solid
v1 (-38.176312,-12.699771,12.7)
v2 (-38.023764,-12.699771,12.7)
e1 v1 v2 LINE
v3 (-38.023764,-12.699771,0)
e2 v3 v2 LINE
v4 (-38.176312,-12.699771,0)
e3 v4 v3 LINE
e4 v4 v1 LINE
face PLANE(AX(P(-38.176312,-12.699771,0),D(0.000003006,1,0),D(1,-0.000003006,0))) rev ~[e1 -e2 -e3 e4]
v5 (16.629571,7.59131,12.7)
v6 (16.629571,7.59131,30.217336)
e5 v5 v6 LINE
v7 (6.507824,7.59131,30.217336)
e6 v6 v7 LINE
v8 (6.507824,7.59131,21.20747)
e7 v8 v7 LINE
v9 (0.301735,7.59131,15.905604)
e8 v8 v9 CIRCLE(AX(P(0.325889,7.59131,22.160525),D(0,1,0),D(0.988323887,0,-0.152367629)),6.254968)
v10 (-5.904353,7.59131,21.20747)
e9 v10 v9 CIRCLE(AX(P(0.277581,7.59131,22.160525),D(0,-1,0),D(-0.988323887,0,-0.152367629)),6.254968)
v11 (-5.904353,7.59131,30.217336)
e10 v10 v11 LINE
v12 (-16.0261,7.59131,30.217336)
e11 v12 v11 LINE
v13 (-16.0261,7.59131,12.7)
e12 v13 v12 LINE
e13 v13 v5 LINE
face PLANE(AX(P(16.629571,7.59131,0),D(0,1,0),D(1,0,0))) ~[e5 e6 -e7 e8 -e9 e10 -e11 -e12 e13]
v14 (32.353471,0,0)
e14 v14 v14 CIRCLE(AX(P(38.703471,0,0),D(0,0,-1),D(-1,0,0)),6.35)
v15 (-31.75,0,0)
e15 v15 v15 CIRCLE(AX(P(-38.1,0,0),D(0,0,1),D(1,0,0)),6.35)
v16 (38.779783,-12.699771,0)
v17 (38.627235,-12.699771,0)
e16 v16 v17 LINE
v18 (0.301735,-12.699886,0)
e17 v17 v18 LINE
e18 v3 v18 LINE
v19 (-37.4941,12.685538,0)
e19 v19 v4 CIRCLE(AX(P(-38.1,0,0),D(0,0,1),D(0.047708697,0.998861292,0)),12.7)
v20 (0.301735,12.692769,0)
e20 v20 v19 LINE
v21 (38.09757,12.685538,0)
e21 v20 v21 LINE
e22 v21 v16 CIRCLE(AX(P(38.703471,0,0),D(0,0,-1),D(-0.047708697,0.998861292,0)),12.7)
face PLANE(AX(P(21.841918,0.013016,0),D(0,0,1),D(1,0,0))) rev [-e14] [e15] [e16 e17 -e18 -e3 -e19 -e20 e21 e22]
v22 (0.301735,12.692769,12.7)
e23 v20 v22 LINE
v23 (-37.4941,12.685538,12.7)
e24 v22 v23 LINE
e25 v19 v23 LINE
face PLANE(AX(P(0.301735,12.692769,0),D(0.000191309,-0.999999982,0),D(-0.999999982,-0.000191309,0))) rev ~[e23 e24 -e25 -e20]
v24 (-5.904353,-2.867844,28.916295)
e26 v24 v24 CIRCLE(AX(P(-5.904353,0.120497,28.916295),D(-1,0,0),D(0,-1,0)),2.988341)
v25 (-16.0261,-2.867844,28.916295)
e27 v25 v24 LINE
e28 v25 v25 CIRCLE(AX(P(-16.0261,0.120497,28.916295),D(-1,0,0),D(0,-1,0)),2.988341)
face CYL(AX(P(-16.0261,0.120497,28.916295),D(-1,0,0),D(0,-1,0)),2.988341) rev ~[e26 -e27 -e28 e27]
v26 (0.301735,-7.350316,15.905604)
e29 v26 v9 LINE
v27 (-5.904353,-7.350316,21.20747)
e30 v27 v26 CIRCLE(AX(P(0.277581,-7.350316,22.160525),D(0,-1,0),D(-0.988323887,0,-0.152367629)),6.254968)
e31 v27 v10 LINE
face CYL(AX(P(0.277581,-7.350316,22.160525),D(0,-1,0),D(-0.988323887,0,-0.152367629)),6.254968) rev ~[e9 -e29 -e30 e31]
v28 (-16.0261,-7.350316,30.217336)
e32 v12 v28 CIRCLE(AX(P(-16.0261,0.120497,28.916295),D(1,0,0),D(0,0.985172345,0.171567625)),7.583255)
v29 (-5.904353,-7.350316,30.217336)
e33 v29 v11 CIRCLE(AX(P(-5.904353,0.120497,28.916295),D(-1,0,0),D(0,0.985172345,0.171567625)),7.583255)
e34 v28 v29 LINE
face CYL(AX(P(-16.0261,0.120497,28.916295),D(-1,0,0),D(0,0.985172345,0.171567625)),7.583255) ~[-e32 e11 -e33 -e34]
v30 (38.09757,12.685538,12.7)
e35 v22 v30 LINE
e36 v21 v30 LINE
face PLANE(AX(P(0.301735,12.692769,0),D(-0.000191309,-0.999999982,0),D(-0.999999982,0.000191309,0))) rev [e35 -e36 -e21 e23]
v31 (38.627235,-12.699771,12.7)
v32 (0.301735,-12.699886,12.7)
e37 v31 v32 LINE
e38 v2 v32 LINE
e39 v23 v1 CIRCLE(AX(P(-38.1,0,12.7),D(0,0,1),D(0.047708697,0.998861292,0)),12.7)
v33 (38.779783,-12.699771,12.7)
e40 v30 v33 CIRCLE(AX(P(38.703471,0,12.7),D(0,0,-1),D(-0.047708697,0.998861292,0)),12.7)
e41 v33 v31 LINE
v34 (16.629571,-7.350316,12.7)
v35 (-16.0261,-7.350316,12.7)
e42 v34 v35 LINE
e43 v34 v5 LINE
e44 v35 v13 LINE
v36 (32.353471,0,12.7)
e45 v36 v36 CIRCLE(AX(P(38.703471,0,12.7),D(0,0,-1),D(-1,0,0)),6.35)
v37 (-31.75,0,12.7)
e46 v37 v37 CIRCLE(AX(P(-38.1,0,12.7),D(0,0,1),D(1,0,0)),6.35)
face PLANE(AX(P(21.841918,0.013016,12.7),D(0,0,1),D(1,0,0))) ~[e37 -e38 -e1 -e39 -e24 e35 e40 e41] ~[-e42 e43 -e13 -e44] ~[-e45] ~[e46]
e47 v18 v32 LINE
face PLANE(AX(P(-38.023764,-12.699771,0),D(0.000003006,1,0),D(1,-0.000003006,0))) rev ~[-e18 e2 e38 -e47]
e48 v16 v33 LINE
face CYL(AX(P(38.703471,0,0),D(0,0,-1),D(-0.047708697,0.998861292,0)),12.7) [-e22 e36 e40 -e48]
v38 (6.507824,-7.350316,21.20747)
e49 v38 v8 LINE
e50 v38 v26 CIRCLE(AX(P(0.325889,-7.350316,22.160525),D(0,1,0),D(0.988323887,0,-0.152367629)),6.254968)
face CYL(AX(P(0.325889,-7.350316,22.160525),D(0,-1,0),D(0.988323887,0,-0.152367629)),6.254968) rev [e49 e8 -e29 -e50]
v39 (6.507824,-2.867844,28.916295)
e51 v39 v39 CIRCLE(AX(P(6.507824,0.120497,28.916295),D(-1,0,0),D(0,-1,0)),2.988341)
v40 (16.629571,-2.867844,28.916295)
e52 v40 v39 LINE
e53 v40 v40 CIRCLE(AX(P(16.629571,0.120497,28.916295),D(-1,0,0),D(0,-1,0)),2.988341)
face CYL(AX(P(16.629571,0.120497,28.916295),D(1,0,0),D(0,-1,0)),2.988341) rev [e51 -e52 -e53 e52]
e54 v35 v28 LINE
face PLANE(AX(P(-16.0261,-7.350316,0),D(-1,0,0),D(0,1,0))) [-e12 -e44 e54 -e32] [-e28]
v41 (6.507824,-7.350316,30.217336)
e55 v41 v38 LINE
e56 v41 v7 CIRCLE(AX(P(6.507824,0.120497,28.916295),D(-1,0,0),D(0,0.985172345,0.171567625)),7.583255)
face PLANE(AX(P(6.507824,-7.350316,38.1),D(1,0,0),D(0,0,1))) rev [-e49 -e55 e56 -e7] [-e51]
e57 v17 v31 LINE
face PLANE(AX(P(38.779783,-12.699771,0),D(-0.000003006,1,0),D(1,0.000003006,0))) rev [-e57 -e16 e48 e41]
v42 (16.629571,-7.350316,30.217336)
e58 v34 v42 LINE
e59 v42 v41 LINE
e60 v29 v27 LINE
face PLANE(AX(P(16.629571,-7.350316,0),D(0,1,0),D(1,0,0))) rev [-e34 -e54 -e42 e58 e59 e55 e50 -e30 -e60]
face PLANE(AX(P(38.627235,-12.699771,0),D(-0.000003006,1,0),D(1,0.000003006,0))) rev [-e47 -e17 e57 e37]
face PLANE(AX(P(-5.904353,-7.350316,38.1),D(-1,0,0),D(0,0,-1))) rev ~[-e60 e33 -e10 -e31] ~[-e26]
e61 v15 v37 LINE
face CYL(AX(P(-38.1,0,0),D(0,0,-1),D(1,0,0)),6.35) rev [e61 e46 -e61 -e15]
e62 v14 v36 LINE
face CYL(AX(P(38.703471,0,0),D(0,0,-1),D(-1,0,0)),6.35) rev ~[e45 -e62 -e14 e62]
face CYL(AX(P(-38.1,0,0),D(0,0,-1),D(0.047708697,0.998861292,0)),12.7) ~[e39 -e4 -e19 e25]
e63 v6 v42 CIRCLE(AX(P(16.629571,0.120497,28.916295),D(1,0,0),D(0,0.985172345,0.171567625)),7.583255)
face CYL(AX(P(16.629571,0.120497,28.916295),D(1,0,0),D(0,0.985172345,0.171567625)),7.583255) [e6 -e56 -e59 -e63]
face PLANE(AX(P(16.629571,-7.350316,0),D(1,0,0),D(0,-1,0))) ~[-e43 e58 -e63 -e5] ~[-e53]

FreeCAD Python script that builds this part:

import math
import FreeCAD as App
import Part
import Sketcher
from FreeCAD import Vector
Q = App.Units.Quantity

doc = App.newDocument("Part")
body = doc.addObject("PartDesign::Body", "Body")

# Sketch on XY plane
sketch1 = body.newObject("Sketcher::SketchObject", "Sketch")
sketch1.AttachmentSupport = (doc.getObject("XY_Plane"), [""])
sketch1.MapMode = "FlatFace"
sketch1.addGeometry(Part.LineSegment(Vector(0.301735, 12.692769, 0), Vector(-37.4941, 12.685538, 0)), False)
sketch1.addGeometry(Part.ArcOfCircle(Part.Circle(Vector(-38.1, 0, 0), Vector(0, 0, 1), 12.7), math.radians(87.265455), math.radians(269.655716)), False)
sketch1.addGeometry(Part.LineSegment(Vector(-38.176312, -12.699771, 0), Vector(-38.023764, -12.699771, 0)), False)
sketch1.addGeometry(Part.LineSegment(Vector(-38.023764, -12.699771, 0), Vector(0.301735, -12.699886, 0)), False)
sketch1.addGeometry(Part.LineSegment(Vector(0.301735, -12.699886, 0), Vector(0.301735, -7.350316, 0)), False)
sketch1.addGeometry(Part.LineSegment(Vector(0.301735, -7.350316, 0), Vector(-16.0261, -7.350316, 0)), False)
sketch1.addGeometry(Part.LineSegment(Vector(-16.0261, -7.350316, 0), Vector(-16.0261, 7.59131, 0)), False)
sketch1.addGeometry(Part.LineSegment(Vector(-16.0261, 7.59131, 0), Vector(0.301735, 7.59131, 0)), False)
sketch1.addGeometry(Part.LineSegment(Vector(0.301735, 7.59131, 0), Vector(0.301735, 12.692769, 0)), False)
sketch1.addGeometry(Part.Circle(Vector(-38.1, 0, 0), Vector(0, 0, 1), 6.35), False)
sketch1.addConstraint(Sketcher.Constraint("Coincident", 0, 2, 1, 1))
sketch1.addConstraint(Sketcher.Constraint("Coincident", 1, 2, 2, 1))
sketch1.addConstraint(Sketcher.Constraint("Coincident", 2, 2, 3, 1))
sketch1.addConstraint(Sketcher.Constraint("Coincident", 3, 2, 4, 1))
sketch1.addConstraint(Sketcher.Constraint("Coincident", 4, 2, 5, 1))
sketch1.addConstraint(Sketcher.Constraint("Coincident", 5, 2, 6, 1))
sketch1.addConstraint(Sketcher.Constraint("Coincident", 6, 2, 7, 1))
sketch1.addConstraint(Sketcher.Constraint("Coincident", 7, 2, 8, 1))
sketch1.addConstraint(Sketcher.Constraint("Coincident", 8, 2, 0, 1))
sketch1.addConstraint(Sketcher.Constraint("Horizontal", 2))
sketch1.addConstraint(Sketcher.Constraint("Vertical", 4))
sketch1.addConstraint(Sketcher.Constraint("Horizontal", 5))
sketch1.addConstraint(Sketcher.Constraint("Vertical", 6))
sketch1.addConstraint(Sketcher.Constraint("Horizontal", 7))
sketch1.addConstraint(Sketcher.Constraint("Vertical", 8))
sketch1.addConstraint(Sketcher.Constraint("Coincident", 9, 3, 1, 3))
sketch1.addConstraint(Sketcher.Constraint("PointOnObject", 1, 3, -1))
sketch1.addConstraint(Sketcher.Constraint("Vertical", 4, 2, 7, 2))
sketch1.addConstraint(Sketcher.Constraint("Diameter", 9, Q("0.5 in")))
sketch1.addConstraint(Sketcher.Constraint("Radius", 1, Q("0.5 in")))
sketch1.addConstraint(Sketcher.Constraint("DistanceX", 1, 3, -1, 1, Q("1.5 in")))
sketch1.addConstraint(Sketcher.Constraint("Distance", 3, 38.325499))
sketch1.addConstraint(Sketcher.Constraint("DistanceX", 2, 1, 2, 2, 0.152549))
sketch1.addConstraint(Sketcher.Constraint("DistanceY", 4, 1, 4, 2, 5.34957))
sketch1.addConstraint(Sketcher.Constraint("DistanceY", 8, 1, 8, 2, 5.101459))
sketch1.addConstraint(Sketcher.Constraint("DistanceX", 0, 2, -1, 1, 37.4941))
sketch1.addConstraint(Sketcher.Constraint("DistanceX", 5, 2, -1, 1, 16.0261))
sketch1.addConstraint(Sketcher.Constraint("DistanceX", 5, 2, 5, 1, 16.327836))
sketch1.addConstraint(Sketcher.Constraint("DistanceY", 6, 1, 6, 2, 14.941626))
sketch1.addConstraint(Sketcher.Constraint("DistanceY", -1, 1, 6, 2, 7.59131))
pad1 = body.newObject("PartDesign::Pad", "Pad")
pad1.Profile = sketch1
pad1.Length = Q("0.5 in")

# Sketch on XY plane
sketch2 = body.newObject("Sketcher::SketchObject", "Sketch001")
sketch2.AttachmentSupport = (doc.getObject("XY_Plane"), [""])
sketch2.MapMode = "FlatFace"
sketch2.addGeometry(Part.LineSegment(Vector(-16.0261, 7.59131, 0), Vector(-16.0261, -7.350316, 0)), False)
sketch2.addGeometry(Part.LineSegment(Vector(-16.0261, -7.350316, 0), Vector(0.301735, -7.350316, 0)), False)
sketch2.addGeometry(Part.LineSegment(Vector(0.301735, -7.350316, 0), Vector(0.301735, 7.59131, 0)), False)
sketch2.addGeometry(Part.LineSegment(Vector(0.301735, 7.59131, 0), Vector(-16.0261, 7.59131, 0)), False)
sketch2.addConstraint(Sketcher.Constraint("Coincident", 0, 2, 1, 1))
sketch2.addConstraint(Sketcher.Constraint("Coincident", 1, 2, 2, 1))
sketch2.addConstraint(Sketcher.Constraint("Coincident", 2, 2, 3, 1))
sketch2.addConstraint(Sketcher.Constraint("Coincident", 3, 2, 0, 1))
sketch2.addConstraint(Sketcher.Constraint("Vertical", 0))
sketch2.addConstraint(Sketcher.Constraint("Horizontal", 1))
sketch2.addConstraint(Sketcher.Constraint("Vertical", 2))
sketch2.addConstraint(Sketcher.Constraint("Horizontal", 3))
sketch2.addConstraint(Sketcher.Constraint("DistanceX", 0, 2, -1, 1, 16.0261))
sketch2.addConstraint(Sketcher.Constraint("DistanceX", 1, 1, 1, 2, 16.327836))
sketch2.addConstraint(Sketcher.Constraint("DistanceY", 0, 2, 0, 1, 14.941626))
sketch2.addConstraint(Sketcher.Constraint("DistanceY", -1, 1, 2, 2, 7.59131))
pad2 = body.newObject("PartDesign::Pad", "Pad001")
pad2.Profile = sketch2
pad2.Length = Q("1.5 in")

# Sketch on XZ plane
sketch3 = body.newObject("Sketcher::SketchObject", "Sketch002")
sketch3.AttachmentSupport = (doc.getObject("XZ_Plane"), [""])
sketch3.MapMode = "FlatFace"
sketch3.AttachmentOffset = App.Placement(Vector(0, 0, 7.350316), App.Rotation())
sketch3.addGeometry(Part.LineSegment(Vector(-5.904353, 38.1, 0), Vector(-5.904353, 21.20747, 0)), False)
sketch3.addGeometry(Part.ArcOfCircle(Part.Circle(Vector(0.277581, 22.160525, 0), Vector(0, 0, 1), 6.254968), math.radians(-171.235841), math.radians(-89.778748)), False)
sketch3.addGeometry(Part.LineSegment(Vector(0.301735, 15.905604, 0), Vector(0.301735, 38.1, 0)), False)
sketch3.addGeometry(Part.LineSegment(Vector(0.301735, 38.1, 0), Vector(-5.904353, 38.1, 0)), False)
sketch3.addConstraint(Sketcher.Constraint("Coincident", 0, 2, 1, 1))
sketch3.addConstraint(Sketcher.Constraint("Coincident", 1, 2, 2, 1))
sketch3.addConstraint(Sketcher.Constraint("Coincident", 2, 2, 3, 1))
sketch3.addConstraint(Sketcher.Constraint("Coincident", 3, 2, 0, 1))
sketch3.addConstraint(Sketcher.Constraint("Vertical", 0))
sketch3.addConstraint(Sketcher.Constraint("Vertical", 2))
sketch3.addConstraint(Sketcher.Constraint("Horizontal", 3))
sketch3.addConstraint(Sketcher.Constraint("DistanceY", -1, 1, 2, 2, Q("1.5 in")))
sketch3.addConstraint(Sketcher.Constraint("Radius", 1, 6.254968))
sketch3.addConstraint(Sketcher.Constraint("DistanceX", 3, 2, 3, 1, 6.206088))
sketch3.addConstraint(Sketcher.Constraint("DistanceY", 0, 2, 0, 1, 16.89253))
sketch3.addConstraint(Sketcher.Constraint("DistanceY", 2, 1, 2, 2, 22.194396))
sketch3.addConstraint(Sketcher.Constraint("DistanceX", -1, 1, 1, 3, 0.277581))
pocket1 = body.newObject("PartDesign::Pocket", "Pocket")
pocket1.Profile = sketch3
pocket1.Length = Q("1 in")

# Sketch on YZ plane
sketch4 = body.newObject("Sketcher::SketchObject", "Sketch003")
sketch4.AttachmentSupport = (doc.getObject("YZ_Plane"), [""])
sketch4.MapMode = "FlatFace"
sketch4.AttachmentOffset = App.Placement(Vector(0, 0, -16.0261), App.Rotation())
sketch4.addGeometry(Part.ArcOfCircle(Part.Circle(Vector(0.120497, 28.916295, 0), Vector(0, 0, 1), 7.583255), math.radians(9.878977), math.radians(170.121023)), False)
sketch4.addGeometry(Part.LineSegment(Vector(-7.350316, 30.217336, 0), Vector(-7.350316, 38.1, 0)), False)
sketch4.addGeometry(Part.LineSegment(Vector(-7.350316, 38.1, 0), Vector(7.59131, 38.1, 0)), False)
sketch4.addGeometry(Part.LineSegment(Vector(7.59131, 38.1, 0), Vector(7.59131, 30.217336, 0)), False)
sketch4.addConstraint(Sketcher.Constraint("Coincident", 0, 2, 1, 1))
sketch4.addConstraint(Sketcher.Constraint("Coincident", 1, 2, 2, 1))
sketch4.addConstraint(Sketcher.Constraint("Coincident", 2, 2, 3, 1))
sketch4.addConstraint(Sketcher.Constraint("Coincident", 3, 2, 0, 1))
sketch4.addConstraint(Sketcher.Constraint("Vertical", 1))
sketch4.addConstraint(Sketcher.Constraint("Horizontal", 2))
sketch4.addConstraint(Sketcher.Constraint("Vertical", 3))
sketch4.addConstraint(Sketcher.Constraint("Horizontal", 0, 2, 3, 2))
sketch4.addConstraint(Sketcher.Constraint("DistanceY", -1, 1, 1, 2, Q("1.5 in")))
sketch4.addConstraint(Sketcher.Constraint("Radius", 0, 7.583255))
sketch4.addConstraint(Sketcher.Constraint("DistanceX", 2, 1, 2, 2, 14.941626))
sketch4.addConstraint(Sketcher.Constraint("DistanceY", 1, 1, 1, 2, 7.882664))
sketch4.addConstraint(Sketcher.Constraint("DistanceX", -1, 1, 2, 2, 7.59131))
pocket2 = body.newObject("PartDesign::Pocket", "Pocket001")
pocket2.Profile = sketch4
pocket2.Length = Q("1 in")
pocket2.Reversed = True

# Sketch on YZ plane
sketch5 = body.newObject("Sketcher::SketchObject", "Sketch004")
sketch5.AttachmentSupport = (doc.getObject("YZ_Plane"), [""])
sketch5.MapMode = "FlatFace"
sketch5.AttachmentOffset = App.Placement(Vector(0, 0, -16.0261), App.Rotation())
sketch5.addGeometry(Part.Circle(Vector(0.120497, 28.916295, 0), Vector(0, 0, 1), 2.988341), False)
sketch5.addConstraint(Sketcher.Constraint("Diameter", 0, 5.976682))
sketch5.addConstraint(Sketcher.Constraint("DistanceX", -1, 1, 0, 3, 0.120497))
sketch5.addConstraint(Sketcher.Constraint("DistanceY", -1, 1, 0, 3, 28.916295))
pocket3 = body.newObject("PartDesign::Pocket", "Pocket002")
pocket3.Profile = sketch5
pocket3.Length = Q("1 in")
pocket3.Reversed = True
body2 = doc.addObject("PartDesign::Body", "Body001")
doc.recompute()

body2.BaseFeature = body
doc.recompute()

mirroring = doc.addObject("Part::Mirroring", "Mirroring")
mirroring.Source = body
mirroring.Base = Vector(0.301735, 0.012484, 7.378433)
mirroring.Normal = Vector(1, 0, 0)
body3 = doc.addObject("PartDesign::Body", "Body002")
body3.BaseFeature = mirroring
boolean = body2.newObject("PartDesign::Boolean", "Boolean")
boolean.Type = "Fuse"
boolean.addObjects([body3])
doc.recompute()
mirroring.Visibility = False

doc.recompute()
